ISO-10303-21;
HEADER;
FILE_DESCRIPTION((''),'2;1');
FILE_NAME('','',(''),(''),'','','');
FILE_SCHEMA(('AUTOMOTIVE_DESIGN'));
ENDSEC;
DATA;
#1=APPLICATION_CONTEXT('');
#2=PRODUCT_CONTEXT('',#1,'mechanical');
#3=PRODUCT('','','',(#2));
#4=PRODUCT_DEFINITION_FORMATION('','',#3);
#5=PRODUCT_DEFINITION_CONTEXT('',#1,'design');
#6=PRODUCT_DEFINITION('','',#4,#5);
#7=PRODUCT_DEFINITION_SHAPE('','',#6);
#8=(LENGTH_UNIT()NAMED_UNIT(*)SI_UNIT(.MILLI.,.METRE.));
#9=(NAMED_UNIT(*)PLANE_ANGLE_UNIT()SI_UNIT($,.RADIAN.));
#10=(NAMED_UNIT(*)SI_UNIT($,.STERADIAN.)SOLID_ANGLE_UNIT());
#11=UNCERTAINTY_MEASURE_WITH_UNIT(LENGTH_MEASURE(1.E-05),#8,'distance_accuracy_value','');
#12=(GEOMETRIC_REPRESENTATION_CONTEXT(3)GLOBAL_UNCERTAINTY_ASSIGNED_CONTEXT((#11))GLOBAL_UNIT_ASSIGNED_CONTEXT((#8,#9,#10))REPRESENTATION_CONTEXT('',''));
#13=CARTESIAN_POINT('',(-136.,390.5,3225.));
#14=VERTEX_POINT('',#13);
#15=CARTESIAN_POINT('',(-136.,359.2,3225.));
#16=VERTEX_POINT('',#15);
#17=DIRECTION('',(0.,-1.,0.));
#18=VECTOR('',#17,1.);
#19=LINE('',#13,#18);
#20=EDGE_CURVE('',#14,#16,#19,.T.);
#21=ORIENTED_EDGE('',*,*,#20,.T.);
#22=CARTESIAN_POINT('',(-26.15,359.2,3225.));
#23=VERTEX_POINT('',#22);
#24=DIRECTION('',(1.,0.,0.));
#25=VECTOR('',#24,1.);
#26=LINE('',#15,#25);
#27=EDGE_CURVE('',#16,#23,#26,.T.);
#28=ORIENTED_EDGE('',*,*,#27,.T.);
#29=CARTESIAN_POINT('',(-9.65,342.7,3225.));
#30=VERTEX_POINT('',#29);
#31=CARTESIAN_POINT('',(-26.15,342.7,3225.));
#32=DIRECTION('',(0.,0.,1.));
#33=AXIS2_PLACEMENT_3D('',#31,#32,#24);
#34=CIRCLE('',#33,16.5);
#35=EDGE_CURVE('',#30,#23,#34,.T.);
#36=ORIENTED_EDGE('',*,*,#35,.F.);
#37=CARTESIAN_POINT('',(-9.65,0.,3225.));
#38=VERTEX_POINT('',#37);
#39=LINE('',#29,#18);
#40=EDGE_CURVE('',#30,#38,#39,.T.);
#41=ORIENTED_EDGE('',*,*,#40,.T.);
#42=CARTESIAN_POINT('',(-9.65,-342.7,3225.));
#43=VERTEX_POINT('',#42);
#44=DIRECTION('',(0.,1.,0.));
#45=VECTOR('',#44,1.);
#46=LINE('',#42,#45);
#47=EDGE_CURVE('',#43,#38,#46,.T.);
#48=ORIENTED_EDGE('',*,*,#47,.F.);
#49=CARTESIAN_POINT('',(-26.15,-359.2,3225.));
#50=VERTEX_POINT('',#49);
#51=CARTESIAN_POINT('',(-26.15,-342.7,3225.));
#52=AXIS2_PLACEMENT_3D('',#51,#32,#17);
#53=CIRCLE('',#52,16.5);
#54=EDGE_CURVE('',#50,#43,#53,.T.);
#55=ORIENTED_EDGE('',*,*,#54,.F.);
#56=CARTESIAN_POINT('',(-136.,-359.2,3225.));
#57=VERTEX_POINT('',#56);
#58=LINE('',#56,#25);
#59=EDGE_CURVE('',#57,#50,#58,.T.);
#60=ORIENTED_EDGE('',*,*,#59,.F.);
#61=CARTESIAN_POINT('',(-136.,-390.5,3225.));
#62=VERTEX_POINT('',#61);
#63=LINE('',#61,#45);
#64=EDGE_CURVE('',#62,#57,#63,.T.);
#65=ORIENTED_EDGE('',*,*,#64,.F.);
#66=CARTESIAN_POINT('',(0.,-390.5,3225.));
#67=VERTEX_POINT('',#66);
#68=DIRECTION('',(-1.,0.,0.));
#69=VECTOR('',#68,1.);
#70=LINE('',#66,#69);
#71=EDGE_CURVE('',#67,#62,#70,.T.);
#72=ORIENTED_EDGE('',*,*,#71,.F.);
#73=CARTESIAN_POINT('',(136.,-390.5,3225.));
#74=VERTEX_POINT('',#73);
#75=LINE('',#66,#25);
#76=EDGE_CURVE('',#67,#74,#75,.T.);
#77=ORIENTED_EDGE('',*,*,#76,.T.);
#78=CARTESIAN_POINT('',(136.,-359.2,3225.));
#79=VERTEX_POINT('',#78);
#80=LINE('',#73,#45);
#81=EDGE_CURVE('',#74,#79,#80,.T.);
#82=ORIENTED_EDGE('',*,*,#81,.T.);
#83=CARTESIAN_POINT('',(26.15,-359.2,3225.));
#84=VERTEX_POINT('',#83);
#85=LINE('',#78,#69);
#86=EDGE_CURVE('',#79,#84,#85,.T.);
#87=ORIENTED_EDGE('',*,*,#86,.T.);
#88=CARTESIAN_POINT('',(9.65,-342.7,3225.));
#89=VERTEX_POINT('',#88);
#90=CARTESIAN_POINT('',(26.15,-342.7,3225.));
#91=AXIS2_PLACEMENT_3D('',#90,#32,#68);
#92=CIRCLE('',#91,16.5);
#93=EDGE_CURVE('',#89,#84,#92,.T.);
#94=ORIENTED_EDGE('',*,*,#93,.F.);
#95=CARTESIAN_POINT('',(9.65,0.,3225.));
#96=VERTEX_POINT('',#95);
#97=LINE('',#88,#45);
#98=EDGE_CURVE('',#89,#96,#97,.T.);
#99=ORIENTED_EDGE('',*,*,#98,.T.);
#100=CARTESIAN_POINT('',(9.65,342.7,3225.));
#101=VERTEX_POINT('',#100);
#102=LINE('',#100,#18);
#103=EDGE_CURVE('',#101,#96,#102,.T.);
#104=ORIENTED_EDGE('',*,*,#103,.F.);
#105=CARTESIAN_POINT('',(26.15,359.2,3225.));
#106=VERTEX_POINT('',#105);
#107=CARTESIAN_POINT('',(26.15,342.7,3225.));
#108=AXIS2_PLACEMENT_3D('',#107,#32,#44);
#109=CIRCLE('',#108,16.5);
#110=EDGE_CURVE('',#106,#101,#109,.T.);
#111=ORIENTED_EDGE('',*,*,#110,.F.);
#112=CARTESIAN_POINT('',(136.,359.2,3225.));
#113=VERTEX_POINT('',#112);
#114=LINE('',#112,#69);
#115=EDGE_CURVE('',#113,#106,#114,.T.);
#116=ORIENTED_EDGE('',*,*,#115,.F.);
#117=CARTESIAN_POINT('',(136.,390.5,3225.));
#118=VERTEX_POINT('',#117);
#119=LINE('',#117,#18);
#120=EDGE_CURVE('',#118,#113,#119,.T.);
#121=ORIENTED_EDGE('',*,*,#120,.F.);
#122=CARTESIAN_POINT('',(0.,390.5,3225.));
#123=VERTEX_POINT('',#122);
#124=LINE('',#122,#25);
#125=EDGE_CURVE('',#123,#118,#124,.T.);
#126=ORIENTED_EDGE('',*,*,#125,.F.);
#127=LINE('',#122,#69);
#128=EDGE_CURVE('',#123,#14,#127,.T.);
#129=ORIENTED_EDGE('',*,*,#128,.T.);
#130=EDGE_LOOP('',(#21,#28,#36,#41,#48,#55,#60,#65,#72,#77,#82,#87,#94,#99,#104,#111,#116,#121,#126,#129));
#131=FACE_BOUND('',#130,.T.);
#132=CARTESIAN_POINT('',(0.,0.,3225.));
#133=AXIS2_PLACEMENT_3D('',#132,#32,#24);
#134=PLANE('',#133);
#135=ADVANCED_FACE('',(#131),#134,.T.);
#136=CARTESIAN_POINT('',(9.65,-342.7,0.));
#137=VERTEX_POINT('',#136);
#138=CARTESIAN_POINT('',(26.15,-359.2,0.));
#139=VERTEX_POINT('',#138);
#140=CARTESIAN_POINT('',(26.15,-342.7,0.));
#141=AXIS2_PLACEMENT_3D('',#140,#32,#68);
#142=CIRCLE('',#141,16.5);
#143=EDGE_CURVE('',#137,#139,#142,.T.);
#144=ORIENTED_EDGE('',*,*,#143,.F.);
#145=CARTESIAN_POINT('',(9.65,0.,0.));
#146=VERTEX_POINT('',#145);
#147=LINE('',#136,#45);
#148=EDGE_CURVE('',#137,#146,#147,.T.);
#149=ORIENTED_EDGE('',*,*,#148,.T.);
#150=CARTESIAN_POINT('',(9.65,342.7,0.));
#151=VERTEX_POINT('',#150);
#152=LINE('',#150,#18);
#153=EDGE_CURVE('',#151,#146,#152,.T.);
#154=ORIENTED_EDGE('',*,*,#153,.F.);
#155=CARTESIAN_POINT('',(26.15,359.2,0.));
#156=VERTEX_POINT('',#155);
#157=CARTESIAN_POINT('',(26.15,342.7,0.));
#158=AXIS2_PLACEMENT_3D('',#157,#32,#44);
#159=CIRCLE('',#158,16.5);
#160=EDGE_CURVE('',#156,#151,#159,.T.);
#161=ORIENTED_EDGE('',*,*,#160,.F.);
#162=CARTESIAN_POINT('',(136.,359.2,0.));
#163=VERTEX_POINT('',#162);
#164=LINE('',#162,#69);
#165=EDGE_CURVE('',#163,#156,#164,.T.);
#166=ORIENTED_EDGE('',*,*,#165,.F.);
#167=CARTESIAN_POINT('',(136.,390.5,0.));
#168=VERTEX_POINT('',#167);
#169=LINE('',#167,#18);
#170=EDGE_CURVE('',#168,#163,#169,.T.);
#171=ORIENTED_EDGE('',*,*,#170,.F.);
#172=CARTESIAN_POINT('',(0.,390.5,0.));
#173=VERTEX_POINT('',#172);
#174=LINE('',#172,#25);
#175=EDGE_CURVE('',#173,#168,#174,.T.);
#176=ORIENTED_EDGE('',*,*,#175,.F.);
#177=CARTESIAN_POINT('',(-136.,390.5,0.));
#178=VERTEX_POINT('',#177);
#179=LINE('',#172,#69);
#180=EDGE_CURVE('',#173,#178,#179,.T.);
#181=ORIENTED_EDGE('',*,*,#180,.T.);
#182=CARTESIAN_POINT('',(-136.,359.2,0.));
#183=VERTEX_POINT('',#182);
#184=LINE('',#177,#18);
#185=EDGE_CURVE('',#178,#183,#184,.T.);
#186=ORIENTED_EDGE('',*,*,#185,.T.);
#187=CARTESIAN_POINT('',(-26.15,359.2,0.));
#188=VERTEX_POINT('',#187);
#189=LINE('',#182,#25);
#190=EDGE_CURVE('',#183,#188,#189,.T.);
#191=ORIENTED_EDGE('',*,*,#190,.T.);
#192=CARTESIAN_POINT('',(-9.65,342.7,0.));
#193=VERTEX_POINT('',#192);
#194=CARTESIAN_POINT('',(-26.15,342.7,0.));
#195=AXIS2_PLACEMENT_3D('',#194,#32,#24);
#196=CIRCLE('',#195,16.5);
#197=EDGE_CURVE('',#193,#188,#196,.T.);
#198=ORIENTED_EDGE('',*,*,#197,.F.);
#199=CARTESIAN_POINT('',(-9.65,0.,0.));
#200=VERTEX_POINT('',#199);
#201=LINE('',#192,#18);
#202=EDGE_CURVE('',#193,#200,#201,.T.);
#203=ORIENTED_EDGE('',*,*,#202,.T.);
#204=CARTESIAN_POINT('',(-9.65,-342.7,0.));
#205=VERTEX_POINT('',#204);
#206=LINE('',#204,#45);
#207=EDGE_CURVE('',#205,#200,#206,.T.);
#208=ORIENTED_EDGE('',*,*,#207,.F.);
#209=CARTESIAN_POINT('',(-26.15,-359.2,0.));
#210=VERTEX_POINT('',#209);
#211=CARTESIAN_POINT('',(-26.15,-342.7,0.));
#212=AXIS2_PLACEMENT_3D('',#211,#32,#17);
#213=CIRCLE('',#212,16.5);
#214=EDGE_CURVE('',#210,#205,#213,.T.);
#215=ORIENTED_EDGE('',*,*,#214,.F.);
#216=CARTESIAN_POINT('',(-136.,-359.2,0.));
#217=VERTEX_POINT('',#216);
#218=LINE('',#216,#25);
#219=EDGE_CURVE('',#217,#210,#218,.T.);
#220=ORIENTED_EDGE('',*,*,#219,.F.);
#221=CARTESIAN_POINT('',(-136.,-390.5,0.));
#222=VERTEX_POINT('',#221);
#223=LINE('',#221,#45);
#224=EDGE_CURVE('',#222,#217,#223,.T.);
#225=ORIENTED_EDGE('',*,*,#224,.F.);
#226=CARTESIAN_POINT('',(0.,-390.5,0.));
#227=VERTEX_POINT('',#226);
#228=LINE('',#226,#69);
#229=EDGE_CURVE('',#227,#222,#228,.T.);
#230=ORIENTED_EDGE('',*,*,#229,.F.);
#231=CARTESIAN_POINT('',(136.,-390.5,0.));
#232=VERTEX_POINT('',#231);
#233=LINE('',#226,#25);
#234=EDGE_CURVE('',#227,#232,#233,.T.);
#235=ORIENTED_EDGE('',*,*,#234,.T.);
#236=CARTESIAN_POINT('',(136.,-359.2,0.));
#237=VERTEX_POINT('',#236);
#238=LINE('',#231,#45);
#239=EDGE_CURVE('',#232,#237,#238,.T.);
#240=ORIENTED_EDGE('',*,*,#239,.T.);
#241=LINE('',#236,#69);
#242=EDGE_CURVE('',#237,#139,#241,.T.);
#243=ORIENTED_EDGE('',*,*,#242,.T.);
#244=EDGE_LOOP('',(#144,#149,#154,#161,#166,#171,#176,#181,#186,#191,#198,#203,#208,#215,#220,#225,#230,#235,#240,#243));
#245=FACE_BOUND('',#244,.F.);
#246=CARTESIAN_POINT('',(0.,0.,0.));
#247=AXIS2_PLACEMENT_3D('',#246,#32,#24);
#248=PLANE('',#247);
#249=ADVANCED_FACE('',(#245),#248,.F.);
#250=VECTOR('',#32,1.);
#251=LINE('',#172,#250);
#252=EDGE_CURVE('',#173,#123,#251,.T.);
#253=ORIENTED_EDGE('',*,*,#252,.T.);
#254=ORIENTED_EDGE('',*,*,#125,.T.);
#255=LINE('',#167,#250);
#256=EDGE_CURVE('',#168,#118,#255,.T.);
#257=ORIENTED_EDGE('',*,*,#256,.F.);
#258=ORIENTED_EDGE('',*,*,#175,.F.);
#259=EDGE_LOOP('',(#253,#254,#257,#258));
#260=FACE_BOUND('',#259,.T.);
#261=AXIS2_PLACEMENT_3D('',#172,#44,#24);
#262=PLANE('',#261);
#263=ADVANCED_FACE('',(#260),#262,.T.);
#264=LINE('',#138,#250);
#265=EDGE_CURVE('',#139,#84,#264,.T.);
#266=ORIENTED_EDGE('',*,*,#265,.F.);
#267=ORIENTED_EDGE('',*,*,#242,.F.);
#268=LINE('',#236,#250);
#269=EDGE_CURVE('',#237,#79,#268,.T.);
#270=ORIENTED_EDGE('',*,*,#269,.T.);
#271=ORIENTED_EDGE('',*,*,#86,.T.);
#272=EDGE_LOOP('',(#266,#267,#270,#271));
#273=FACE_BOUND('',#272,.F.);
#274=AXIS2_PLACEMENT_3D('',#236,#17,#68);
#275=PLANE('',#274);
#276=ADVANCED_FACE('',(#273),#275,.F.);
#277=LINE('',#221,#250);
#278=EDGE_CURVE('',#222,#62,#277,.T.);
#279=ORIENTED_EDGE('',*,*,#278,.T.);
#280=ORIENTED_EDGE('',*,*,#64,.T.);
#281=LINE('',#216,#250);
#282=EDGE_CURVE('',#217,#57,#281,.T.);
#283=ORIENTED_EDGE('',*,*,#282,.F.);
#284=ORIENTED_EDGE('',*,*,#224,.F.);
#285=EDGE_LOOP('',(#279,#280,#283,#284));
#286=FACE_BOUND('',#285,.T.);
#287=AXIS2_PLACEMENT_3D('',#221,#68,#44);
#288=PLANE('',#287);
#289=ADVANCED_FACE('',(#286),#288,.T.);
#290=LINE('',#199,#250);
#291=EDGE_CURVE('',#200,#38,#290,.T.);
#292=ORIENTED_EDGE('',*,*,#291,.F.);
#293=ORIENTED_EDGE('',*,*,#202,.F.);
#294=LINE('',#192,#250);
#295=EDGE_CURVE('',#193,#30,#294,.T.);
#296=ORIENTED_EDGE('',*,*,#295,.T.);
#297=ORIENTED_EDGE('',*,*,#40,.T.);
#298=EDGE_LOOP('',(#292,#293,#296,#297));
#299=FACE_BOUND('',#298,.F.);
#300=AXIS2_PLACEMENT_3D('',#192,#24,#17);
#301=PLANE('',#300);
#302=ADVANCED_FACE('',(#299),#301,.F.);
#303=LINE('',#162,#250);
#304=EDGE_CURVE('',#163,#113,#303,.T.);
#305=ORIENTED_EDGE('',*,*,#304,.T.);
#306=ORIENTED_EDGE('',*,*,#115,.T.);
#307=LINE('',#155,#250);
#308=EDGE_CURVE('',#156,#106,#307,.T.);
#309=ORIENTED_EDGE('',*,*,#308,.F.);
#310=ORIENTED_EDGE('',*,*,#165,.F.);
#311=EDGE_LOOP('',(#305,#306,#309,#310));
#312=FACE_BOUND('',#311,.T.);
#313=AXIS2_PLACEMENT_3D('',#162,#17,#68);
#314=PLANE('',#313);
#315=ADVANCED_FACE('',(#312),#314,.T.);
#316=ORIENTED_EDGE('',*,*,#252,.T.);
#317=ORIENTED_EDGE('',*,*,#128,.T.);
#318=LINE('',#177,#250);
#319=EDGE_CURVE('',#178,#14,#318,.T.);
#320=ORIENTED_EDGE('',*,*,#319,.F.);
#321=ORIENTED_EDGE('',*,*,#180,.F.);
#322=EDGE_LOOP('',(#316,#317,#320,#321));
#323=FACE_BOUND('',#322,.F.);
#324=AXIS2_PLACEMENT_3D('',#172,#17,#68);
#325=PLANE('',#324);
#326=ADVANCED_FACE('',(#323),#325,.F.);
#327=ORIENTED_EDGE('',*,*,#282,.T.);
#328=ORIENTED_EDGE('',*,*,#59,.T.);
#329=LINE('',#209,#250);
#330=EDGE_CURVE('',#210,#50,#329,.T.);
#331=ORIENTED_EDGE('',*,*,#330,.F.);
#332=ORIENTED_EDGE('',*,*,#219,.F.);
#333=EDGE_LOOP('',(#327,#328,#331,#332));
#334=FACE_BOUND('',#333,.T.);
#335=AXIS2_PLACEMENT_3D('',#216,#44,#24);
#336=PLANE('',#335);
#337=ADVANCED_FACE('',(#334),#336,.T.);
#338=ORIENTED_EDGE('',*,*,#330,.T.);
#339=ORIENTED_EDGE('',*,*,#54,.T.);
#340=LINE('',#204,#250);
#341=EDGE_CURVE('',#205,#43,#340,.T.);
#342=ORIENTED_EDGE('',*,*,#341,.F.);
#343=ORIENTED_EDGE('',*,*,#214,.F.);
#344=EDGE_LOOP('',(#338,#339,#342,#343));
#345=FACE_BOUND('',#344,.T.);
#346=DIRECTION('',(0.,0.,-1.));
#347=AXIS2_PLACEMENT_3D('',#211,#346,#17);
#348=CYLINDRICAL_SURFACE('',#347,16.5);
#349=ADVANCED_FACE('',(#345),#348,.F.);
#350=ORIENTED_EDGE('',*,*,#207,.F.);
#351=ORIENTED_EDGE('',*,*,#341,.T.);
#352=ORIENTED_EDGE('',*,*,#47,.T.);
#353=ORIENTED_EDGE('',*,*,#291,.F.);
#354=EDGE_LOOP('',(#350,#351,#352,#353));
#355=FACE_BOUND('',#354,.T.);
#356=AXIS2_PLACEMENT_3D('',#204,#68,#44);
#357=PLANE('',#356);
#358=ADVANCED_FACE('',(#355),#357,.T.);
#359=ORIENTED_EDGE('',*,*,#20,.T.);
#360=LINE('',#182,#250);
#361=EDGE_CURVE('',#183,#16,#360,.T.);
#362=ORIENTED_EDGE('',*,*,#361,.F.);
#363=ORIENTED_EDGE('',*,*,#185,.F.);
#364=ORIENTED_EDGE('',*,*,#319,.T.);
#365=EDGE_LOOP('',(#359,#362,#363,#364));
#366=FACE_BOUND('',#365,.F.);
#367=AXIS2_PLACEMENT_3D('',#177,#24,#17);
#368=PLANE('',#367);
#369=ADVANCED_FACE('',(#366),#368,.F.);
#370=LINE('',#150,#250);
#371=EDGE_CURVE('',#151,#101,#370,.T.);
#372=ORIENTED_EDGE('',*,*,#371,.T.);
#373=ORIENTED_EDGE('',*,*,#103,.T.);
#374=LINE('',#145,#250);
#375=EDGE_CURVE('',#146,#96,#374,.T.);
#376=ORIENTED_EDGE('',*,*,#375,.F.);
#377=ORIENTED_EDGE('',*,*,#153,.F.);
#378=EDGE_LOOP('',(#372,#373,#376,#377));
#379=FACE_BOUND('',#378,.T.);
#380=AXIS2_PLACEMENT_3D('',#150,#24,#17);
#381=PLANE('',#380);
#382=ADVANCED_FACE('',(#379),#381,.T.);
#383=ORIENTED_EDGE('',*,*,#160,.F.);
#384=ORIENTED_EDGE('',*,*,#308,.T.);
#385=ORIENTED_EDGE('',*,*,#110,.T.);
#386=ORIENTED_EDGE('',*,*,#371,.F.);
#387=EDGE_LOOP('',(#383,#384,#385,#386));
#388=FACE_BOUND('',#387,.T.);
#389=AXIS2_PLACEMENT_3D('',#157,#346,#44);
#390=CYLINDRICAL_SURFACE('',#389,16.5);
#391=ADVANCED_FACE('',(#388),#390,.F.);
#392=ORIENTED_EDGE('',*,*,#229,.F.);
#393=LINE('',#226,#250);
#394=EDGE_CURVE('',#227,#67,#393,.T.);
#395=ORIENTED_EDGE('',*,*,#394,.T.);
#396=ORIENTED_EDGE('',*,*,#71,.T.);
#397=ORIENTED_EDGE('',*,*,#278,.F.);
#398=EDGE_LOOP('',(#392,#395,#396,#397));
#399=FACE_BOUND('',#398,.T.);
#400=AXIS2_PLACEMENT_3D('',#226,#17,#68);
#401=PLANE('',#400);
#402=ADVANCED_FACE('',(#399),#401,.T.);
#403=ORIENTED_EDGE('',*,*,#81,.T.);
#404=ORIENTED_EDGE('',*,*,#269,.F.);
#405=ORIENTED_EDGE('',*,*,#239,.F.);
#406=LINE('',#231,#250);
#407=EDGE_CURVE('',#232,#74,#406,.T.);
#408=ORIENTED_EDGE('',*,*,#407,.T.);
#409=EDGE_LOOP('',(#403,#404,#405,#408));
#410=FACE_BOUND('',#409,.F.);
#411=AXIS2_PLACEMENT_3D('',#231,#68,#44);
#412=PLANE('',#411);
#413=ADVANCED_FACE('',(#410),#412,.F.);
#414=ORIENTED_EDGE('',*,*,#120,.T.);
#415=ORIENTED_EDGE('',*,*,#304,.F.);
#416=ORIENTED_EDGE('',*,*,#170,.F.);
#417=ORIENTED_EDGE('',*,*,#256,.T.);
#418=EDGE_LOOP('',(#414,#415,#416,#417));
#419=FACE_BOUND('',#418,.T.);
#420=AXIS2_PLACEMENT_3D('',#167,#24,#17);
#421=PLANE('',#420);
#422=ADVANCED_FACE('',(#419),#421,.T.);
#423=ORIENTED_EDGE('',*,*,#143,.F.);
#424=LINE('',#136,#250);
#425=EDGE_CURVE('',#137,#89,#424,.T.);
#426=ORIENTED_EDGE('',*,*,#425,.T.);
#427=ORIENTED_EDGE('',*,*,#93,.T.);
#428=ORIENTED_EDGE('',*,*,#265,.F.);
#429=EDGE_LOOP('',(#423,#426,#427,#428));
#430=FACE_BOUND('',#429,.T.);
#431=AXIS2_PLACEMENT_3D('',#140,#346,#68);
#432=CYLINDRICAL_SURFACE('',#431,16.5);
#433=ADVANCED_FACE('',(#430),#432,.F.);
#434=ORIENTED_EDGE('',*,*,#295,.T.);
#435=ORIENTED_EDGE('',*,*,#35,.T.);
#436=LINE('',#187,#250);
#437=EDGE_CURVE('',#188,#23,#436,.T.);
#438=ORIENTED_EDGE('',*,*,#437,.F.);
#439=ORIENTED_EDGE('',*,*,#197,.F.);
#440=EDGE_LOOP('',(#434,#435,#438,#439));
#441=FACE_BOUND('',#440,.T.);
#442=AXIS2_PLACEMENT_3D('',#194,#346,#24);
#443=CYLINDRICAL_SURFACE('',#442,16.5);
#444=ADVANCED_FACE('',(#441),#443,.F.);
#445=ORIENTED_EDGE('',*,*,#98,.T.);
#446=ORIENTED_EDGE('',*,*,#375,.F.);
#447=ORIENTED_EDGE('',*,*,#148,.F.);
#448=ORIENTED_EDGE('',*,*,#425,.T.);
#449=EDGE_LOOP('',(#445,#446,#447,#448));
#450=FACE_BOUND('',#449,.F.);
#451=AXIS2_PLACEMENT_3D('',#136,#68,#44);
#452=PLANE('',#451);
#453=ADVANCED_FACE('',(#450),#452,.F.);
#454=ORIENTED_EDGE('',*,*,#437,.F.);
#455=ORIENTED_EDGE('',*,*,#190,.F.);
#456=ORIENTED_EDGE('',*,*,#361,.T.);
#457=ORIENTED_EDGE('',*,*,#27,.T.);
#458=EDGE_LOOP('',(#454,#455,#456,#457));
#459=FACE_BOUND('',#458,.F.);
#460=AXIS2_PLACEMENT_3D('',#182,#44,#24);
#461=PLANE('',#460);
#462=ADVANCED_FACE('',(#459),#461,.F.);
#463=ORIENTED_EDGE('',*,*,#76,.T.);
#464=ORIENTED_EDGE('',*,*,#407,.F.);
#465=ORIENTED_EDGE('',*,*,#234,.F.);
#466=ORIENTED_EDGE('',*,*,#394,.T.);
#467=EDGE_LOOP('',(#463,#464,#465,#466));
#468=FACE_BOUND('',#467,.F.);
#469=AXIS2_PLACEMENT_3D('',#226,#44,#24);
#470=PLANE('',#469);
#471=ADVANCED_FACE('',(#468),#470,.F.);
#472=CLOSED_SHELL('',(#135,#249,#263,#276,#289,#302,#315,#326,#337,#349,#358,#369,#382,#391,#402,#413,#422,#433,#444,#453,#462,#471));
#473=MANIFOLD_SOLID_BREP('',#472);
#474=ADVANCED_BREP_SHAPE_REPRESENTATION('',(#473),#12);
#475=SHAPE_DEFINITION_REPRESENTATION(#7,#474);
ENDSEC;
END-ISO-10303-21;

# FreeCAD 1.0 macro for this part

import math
import FreeCAD as App
import Part
import Sketcher
from FreeCAD import Vector
Q = App.Units.Quantity

doc = App.newDocument("Part")
body = doc.addObject("PartDesign::Body", "Body")

# Sketch on XY plane
sketch1 = body.newObject("Sketcher::SketchObject", "Sketch")
sketch1.AttachmentSupport = (doc.getObject("XY_Plane"), [""])
sketch1.MapMode = "FlatFace"
sketch1.addGeometry(Part.LineSegment(Vector(-136, -359, 0), Vector(-136, -390, 0)), False)
sketch1.addGeometry(Part.LineSegment(Vector(-136, -390, 0), Vector(136, -390, 0)), False)
sketch1.addGeometry(Part.LineSegment(Vector(136, -390, 0), Vector(136, -359, 0)), False)
sketch1.addGeometry(Part.LineSegment(Vector(136, -359, 0), Vector(26, -359, 0)), False)
sketch1.addGeometry(Part.ArcOfCircle(Part.Circle(Vector(26, -343, 0), Vector(0, 0, 1), 16), math.radians(180), math.radians(270)), False)
sketch1.addGeometry(Part.LineSegment(Vector(10, -343, 0), Vector(10, 343, 0)), False)
sketch1.addGeometry(Part.ArcOfCircle(Part.Circle(Vector(26, 343, 0), Vector(0, 0, 1), 16), math.radians(90), math.radians(180)), False)
sketch1.addGeometry(Part.LineSegment(Vector(26, 359, 0), Vector(136, 359, 0)), False)
sketch1.addGeometry(Part.LineSegment(Vector(136, 359, 0), Vector(136, 390, 0)), False)
sketch1.addGeometry(Part.LineSegment(Vector(136, 390, 0), Vector(-136, 390, 0)), False)
sketch1.addGeometry(Part.LineSegment(Vector(-136, 390, 0), Vector(-136, 359, 0)), False)
sketch1.addGeometry(Part.LineSegment(Vector(-136, 359, 0), Vector(-26, 359, 0)), False)
sketch1.addGeometry(Part.ArcOfCircle(Part.Circle(Vector(-26, 343, 0), Vector(0, 0, 1), 16), math.radians(0), math.radians(90)), False)
sketch1.addGeometry(Part.LineSegment(Vector(-10, 343, 0), Vector(-10, -343, 0)), False)
sketch1.addGeometry(Part.ArcOfCircle(Part.Circle(Vector(-26, -343, 0), Vector(0, 0, 1), 16), math.radians(-90), math.radians(0)), False)
sketch1.addGeometry(Part.LineSegment(Vector(-26, -359, 0), Vector(-136, -359, 0)), False)
sketch1.addConstraint(Sketcher.Constraint("Coincident", 0, 2, 1, 1))
sketch1.addConstraint(Sketcher.Constraint("Coincident", 1, 2, 2, 1))
sketch1.addConstraint(Sketcher.Constraint("Coincident", 2, 2, 3, 1))
sketch1.addConstraint(Sketcher.Constraint("Tangent", 3, 2, 4, 2))
sketch1.addConstraint(Sketcher.Constraint("Tangent", 4, 1, 5, 1))
sketch1.addConstraint(Sketcher.Constraint("Tangent", 5, 2, 6, 2))
sketch1.addConstraint(Sketcher.Constraint("Tangent", 6, 1, 7, 1))
sketch1.addConstraint(Sketcher.Constraint("Coincident", 7, 2, 8, 1))
sketch1.addConstraint(Sketcher.Constraint("Coincident", 8, 2, 9, 1))
sketch1.addConstraint(Sketcher.Constraint("Coincident", 9, 2, 10, 1))
sketch1.addConstraint(Sketcher.Constraint("Coincident", 10, 2, 11, 1))
sketch1.addConstraint(Sketcher.Constraint("Tangent", 11, 2, 12, 2))
sketch1.addConstraint(Sketcher.Constraint("Tangent", 12, 1, 13, 1))
sketch1.addConstraint(Sketcher.Constraint("Tangent", 13, 2, 14, 2))
sketch1.addConstraint(Sketcher.Constraint("Tangent", 14, 1, 15, 1))
sketch1.addConstraint(Sketcher.Constraint("Coincident", 15, 2, 0, 1))
sketch1.addConstraint(Sketcher.Constraint("Vertical", 0))
sketch1.addConstraint(Sketcher.Constraint("Horizontal", 1))
sketch1.addConstraint(Sketcher.Constraint("Vertical", 2))
sketch1.addConstraint(Sketcher.Constraint("Horizontal", 3))
sketch1.addConstraint(Sketcher.Constraint("Vertical", 5))
sketch1.addConstraint(Sketcher.Constraint("Horizontal", 7))
sketch1.addConstraint(Sketcher.Constraint("Vertical", 8))
sketch1.addConstraint(Sketcher.Constraint("Horizontal", 9))
sketch1.addConstraint(Sketcher.Constraint("Vertical", 10))
sketch1.addConstraint(Sketcher.Constraint("Horizontal", 11))
sketch1.addConstraint(Sketcher.Constraint("Vertical", 13))
sketch1.addConstraint(Sketcher.Constraint("Horizontal", 15))
sketch1.addConstraint(Sketcher.Constraint("Equal", 4, 6))
sketch1.addConstraint(Sketcher.Constraint("Equal", 6, 12))
sketch1.addConstraint(Sketcher.Constraint("Equal", 12, 14))
sketch1.addConstraint(Sketcher.Constraint("Symmetric", 4, 3, 12, 3, -1, 1))
sketch1.addConstraint(Sketcher.Constraint("Symmetric", 0, 2, 8, 2, -1, 1))
sketch1.addConstraint(Sketcher.Constraint("Symmetric", 7, 2, 10, 2, -2))
sketch1.addConstraint(Sketcher.Constraint("Symmetric", 2, 2, 15, 2, -2))
sketch1.addConstraint(Sketcher.Constraint("Radius", 4, Q("16.5 mm")))
sketch1.addConstraint(Sketcher.Constraint("DistanceY", 0, 2, 0, 1, Q("31.3 mm")))
sketch1.addConstraint(Sketcher.Constraint("DistanceX", 0, 2, -1, 1, Q("136 mm")))
sketch1.addConstraint(Sketcher.Constraint("DistanceY", 0, 2, -1, 1, Q("390.5 mm")))
sketch1.addConstraint(Sketcher.Constraint("DistanceX", -1, 1, 4, 1, Q("9.65 mm")))
pad1 = body.newObject("PartDesign::Pad", "Pad")
pad1.Profile = sketch1
pad1.Length = 3225

doc.recompute()
